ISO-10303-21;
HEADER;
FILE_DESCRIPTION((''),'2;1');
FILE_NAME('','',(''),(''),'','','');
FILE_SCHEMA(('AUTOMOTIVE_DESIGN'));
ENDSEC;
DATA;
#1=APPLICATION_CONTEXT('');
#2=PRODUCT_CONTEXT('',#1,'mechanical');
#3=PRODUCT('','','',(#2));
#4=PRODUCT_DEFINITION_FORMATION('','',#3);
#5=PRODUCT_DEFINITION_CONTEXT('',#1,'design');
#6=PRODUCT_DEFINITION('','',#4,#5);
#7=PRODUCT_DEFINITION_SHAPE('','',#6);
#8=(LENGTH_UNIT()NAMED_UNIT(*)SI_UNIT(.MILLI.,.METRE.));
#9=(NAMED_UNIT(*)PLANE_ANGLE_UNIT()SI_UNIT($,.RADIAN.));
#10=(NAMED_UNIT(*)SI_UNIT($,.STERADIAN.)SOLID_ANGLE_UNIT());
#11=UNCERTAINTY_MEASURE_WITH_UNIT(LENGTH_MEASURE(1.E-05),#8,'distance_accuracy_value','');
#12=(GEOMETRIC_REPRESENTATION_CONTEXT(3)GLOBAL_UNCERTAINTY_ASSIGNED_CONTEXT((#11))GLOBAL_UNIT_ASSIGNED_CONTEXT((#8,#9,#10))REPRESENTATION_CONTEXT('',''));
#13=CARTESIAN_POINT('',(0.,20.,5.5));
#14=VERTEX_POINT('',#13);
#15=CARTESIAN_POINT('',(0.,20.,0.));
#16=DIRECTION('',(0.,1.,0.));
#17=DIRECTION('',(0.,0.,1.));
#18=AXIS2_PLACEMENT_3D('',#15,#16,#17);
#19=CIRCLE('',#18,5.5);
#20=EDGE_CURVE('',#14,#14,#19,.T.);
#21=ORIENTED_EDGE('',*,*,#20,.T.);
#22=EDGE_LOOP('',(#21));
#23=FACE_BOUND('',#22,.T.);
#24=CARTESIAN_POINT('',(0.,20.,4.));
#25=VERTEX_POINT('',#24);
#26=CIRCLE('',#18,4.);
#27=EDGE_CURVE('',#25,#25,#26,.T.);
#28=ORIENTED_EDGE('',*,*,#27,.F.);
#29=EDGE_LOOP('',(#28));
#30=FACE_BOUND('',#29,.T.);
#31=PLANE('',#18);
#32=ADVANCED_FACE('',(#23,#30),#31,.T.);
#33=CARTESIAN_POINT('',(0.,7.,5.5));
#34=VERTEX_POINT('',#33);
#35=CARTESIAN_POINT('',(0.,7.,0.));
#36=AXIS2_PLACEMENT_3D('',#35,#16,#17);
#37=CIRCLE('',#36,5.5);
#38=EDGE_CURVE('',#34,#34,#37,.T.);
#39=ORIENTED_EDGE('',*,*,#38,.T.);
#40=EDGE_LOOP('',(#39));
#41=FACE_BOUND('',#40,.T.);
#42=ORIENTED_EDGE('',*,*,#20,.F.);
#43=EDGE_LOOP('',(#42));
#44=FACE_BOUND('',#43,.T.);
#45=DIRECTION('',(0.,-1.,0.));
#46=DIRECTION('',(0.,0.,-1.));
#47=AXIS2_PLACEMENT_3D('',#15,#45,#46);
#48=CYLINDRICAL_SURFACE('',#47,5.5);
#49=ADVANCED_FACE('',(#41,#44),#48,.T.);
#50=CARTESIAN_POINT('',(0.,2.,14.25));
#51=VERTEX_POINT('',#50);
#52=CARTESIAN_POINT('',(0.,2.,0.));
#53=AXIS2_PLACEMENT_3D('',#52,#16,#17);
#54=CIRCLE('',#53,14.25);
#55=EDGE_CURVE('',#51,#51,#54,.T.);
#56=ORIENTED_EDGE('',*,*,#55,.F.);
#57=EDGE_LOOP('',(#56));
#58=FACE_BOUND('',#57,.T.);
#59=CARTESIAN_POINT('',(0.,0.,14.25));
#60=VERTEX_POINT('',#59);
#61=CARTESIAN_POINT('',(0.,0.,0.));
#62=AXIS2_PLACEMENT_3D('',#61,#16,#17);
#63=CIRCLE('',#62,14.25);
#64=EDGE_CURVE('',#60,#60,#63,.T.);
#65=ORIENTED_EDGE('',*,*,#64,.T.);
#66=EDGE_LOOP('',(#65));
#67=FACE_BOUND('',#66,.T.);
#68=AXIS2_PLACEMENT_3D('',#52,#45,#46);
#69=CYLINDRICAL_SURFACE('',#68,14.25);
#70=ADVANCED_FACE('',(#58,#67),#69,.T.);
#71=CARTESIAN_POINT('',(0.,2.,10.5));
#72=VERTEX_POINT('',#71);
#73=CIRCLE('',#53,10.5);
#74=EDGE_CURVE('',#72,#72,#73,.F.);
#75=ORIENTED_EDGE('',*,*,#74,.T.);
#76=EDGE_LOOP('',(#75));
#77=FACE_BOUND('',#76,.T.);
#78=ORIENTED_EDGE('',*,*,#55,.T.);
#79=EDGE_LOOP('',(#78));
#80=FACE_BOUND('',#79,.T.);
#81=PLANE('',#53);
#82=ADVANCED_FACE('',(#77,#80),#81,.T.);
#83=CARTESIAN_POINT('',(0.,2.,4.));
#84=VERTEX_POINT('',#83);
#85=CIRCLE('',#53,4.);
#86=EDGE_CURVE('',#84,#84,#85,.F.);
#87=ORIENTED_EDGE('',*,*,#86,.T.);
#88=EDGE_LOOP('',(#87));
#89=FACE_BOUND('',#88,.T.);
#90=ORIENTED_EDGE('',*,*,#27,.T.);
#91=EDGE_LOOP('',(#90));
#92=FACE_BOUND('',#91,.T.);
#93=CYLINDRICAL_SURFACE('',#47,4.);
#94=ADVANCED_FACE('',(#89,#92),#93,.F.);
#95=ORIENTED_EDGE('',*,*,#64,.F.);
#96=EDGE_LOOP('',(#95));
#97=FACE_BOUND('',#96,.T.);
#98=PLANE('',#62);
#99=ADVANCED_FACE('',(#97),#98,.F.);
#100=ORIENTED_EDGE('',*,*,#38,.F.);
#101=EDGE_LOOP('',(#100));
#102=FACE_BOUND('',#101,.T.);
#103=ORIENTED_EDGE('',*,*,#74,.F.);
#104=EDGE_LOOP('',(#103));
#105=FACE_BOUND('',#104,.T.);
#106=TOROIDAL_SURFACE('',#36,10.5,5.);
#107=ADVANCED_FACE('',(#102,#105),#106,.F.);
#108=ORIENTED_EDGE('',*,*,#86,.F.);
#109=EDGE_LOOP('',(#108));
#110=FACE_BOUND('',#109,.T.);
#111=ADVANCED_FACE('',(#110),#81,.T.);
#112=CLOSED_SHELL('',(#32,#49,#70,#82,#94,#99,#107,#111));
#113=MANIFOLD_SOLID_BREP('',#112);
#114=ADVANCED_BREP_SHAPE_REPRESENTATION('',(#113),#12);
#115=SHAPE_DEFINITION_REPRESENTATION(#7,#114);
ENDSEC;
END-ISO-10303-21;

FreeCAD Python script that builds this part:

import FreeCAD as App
import Part
import Sketcher

V = App.Vector
Q = App.Units.Quantity


def edges_at(feature, points):
    """Names of the edges that pass closest to the given points."""
    edges = feature.Shape.Edges
    near = lambda p: min(range(len(edges)), key=lambda i: edges[i].distToShape(Part.Vertex(*p))[0])
    return sorted({f"Edge{near(p) + 1}" for p in points})

doc = App.newDocument("Part")
body = doc.addObject("PartDesign::Body", "Body")

# Sketch on XZ plane
sketch1 = body.newObject("Sketcher::SketchObject", "Sketch")
sketch1.AttachmentSupport = (doc.getObject("XZ_Plane"), [""])
sketch1.MapMode = "FlatFace"
sketch1.addGeometry(Part.Circle(V(0, 0, 0), V(0, 0, 1), 14), False)
sketch1.addConstraint([
    Sketcher.Constraint("Coincident", 0, 3, -1, 1),
    Sketcher.Constraint("Diameter", 0, Q("28.5 mm")),
])
pad1 = body.newObject("PartDesign::Pad", "Pad")
pad1.Profile = sketch1
pad1.Length = 2
pad1.Reversed = True

# Sketch on XZ plane
sketch2 = body.newObject("Sketcher::SketchObject", "Sketch001")
sketch2.AttachmentSupport = (doc.getObject("XZ_Plane"), [""])
sketch2.MapMode = "FlatFace"
sketch2.AttachmentOffset = App.Placement(V(0, 0, -2), App.Rotation())
sketch2.addGeometry([
    Part.Circle(V(0, 0, 0), V(0, 0, 1), 5.5),
    Part.Circle(V(0, 0, 0), V(0, 0, 1), 4),
], False)
sketch2.addConstraint([
    Sketcher.Constraint("Coincident", 0, 3, -1, 1),
    Sketcher.Constraint("Coincident", 1, 3, -1, 1),
    Sketcher.Constraint("Diameter", 0, Q("11 mm")),
    Sketcher.Constraint("Diameter", 1, Q("8 mm")),
])
pad2 = body.newObject("PartDesign::Pad", "Pad001")
pad2.Profile = sketch2
pad2.Length = 18
pad2.Reversed = True
doc.recompute()

fillet = body.newObject("PartDesign::Fillet", "Fillet")
fillet.Base = (pad2, edges_at(pad2, [(0, 2, -5.5)]))
fillet.Radius = 5

doc.recompute()
